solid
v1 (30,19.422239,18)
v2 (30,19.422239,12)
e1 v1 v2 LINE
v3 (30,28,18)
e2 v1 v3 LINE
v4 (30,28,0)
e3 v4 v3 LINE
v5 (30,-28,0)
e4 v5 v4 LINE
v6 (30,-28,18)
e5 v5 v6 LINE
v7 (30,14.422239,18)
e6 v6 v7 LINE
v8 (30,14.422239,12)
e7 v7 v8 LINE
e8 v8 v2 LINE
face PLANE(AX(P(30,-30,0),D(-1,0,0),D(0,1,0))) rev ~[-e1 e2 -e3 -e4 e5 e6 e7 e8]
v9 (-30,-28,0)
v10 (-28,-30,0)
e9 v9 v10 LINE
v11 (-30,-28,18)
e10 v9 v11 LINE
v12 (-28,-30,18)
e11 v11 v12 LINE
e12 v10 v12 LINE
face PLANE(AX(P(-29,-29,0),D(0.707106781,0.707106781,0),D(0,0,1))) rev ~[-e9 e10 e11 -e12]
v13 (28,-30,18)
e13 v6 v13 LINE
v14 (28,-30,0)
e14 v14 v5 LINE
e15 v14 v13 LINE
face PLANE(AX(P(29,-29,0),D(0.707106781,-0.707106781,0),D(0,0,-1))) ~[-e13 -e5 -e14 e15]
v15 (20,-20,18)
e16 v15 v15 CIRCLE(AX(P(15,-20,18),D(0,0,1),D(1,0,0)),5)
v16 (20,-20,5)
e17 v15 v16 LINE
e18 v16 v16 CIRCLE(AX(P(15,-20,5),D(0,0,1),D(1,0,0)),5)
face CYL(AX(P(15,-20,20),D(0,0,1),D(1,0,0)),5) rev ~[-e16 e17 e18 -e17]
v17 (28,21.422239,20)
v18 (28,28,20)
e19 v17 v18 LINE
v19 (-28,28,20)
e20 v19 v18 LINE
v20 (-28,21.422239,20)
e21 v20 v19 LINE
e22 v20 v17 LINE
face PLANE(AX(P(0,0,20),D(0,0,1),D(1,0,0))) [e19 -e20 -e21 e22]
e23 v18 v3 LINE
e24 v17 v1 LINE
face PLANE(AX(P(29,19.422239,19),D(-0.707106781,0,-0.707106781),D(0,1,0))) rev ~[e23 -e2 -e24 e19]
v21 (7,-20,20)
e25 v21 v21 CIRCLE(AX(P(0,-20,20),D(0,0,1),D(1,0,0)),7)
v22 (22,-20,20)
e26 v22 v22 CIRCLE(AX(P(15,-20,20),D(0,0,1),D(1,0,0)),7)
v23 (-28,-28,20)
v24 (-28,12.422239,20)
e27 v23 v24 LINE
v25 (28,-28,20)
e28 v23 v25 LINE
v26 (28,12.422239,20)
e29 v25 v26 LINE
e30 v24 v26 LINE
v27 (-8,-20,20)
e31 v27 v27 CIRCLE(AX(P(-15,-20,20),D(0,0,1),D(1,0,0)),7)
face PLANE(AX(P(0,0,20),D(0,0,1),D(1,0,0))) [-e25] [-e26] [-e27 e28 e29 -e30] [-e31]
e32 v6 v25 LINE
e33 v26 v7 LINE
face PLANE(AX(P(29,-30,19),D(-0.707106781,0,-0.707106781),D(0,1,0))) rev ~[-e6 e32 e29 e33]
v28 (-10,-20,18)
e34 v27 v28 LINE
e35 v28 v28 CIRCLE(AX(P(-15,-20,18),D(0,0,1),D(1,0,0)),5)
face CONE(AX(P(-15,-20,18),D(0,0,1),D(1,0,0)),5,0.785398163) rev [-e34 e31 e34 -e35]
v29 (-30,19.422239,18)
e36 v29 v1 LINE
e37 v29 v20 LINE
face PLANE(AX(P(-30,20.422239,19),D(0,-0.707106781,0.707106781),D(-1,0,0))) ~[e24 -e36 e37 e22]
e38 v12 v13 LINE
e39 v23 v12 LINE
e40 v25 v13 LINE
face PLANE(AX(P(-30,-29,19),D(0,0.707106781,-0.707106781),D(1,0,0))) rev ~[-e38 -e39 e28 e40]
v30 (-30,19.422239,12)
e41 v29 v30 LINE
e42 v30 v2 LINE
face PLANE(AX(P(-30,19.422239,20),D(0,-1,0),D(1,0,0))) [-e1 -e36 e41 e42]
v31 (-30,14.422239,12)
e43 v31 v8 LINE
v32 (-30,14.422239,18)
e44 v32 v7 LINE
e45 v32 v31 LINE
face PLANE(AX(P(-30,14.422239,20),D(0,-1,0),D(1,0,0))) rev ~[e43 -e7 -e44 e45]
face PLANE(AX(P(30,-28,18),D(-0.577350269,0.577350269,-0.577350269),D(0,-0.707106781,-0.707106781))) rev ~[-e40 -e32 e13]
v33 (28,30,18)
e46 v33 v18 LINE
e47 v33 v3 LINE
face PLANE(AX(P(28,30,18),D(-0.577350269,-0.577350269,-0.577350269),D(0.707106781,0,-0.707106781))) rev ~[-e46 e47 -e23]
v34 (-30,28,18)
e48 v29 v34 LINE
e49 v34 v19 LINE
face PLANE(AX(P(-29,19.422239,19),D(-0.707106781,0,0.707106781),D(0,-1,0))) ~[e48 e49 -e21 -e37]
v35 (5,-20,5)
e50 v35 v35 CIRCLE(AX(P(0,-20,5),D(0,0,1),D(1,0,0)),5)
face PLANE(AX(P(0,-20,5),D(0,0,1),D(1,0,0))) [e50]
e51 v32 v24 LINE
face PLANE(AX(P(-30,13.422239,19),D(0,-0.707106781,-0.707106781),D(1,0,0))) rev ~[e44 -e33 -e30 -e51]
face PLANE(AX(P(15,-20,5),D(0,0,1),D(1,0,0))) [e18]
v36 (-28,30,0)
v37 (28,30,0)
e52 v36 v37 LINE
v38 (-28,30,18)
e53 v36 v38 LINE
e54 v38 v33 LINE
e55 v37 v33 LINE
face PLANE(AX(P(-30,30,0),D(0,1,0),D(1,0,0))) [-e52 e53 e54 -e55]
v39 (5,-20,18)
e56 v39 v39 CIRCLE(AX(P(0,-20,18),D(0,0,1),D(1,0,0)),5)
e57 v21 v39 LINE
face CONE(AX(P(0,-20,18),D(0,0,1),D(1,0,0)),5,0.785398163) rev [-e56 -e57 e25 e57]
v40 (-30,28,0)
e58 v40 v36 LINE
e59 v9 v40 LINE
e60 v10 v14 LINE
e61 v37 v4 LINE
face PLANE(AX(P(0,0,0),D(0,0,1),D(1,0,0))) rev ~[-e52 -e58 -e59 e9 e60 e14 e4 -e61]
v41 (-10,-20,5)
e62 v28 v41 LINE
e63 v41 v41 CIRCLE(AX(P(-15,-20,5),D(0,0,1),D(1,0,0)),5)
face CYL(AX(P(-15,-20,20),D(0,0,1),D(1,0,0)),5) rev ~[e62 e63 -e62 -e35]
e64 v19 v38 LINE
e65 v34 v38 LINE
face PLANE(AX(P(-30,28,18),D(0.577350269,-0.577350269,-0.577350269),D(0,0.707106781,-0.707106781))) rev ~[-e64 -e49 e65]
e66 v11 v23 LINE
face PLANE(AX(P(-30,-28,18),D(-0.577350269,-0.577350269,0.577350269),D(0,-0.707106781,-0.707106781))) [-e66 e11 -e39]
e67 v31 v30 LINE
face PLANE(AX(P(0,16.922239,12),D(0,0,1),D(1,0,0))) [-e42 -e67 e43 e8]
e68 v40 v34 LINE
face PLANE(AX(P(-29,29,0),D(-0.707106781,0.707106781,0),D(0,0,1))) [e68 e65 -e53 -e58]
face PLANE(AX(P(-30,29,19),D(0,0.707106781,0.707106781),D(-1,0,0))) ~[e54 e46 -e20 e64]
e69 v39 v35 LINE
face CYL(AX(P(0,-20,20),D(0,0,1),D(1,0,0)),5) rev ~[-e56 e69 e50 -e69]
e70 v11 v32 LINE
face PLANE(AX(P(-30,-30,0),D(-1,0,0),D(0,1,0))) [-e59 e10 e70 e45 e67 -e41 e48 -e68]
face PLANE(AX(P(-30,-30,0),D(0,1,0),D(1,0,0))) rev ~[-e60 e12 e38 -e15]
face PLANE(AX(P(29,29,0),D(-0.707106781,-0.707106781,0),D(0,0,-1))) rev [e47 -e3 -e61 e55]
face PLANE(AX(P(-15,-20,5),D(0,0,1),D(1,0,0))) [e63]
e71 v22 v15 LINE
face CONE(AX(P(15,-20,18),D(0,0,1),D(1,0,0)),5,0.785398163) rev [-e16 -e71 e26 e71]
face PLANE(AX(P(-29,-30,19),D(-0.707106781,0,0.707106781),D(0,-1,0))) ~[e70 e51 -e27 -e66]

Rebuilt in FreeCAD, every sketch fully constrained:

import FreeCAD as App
import Part
import Sketcher

V = App.Vector
Q = App.Units.Quantity


def edges_at(feature, points):
    """Names of the edges that pass closest to the given points."""
    edges = feature.Shape.Edges
    near = lambda p: min(range(len(edges)), key=lambda i: edges[i].distToShape(Part.Vertex(*p))[0])
    return sorted({f"Edge{near(p) + 1}" for p in points})

doc = App.newDocument("Part")
body = doc.addObject("PartDesign::Body", "Body")

# Sketch on XY plane
sketch1 = doc.addObject("Sketcher::SketchObject", "Sketch")
body.addObject(sketch1)
sketch1.AttachmentSupport = (doc.XY_Plane, [""])
sketch1.MapMode = "FlatFace"
sketch1.addGeometry(Part.LineSegment(V(-30, 30, 0), V(-30, -30, 0)), False)
sketch1.addGeometry(Part.LineSegment(V(-30, -30, 0), V(30, -30, 0)), False)
sketch1.addGeometry(Part.LineSegment(V(30, -30, 0), V(30, 30, 0)), False)
sketch1.addGeometry(Part.LineSegment(V(30, 30, 0), V(-30, 30, 0)), False)
sketch1.addConstraint(Sketcher.Constraint("Coincident", 0, 2, 1, 1))
sketch1.addConstraint(Sketcher.Constraint("Coincident", 1, 2, 2, 1))
sketch1.addConstraint(Sketcher.Constraint("Coincident", 2, 2, 3, 1))
sketch1.addConstraint(Sketcher.Constraint("Coincident", 3, 2, 0, 1))
sketch1.addConstraint(Sketcher.Constraint("Vertical", 0))
sketch1.addConstraint(Sketcher.Constraint("Horizontal", 1))
sketch1.addConstraint(Sketcher.Constraint("Vertical", 2))
sketch1.addConstraint(Sketcher.Constraint("Horizontal", 3))
sketch1.addConstraint(Sketcher.Constraint("Symmetric", 0, 2, 2, 2, -1, 1))
sketch1.addConstraint(Sketcher.Constraint("Equal", 3, 0))
sketch1.addConstraint(Sketcher.Constraint("DistanceX", 1, 1, 1, 2, Q("60 mm")))
pad1 = doc.addObject("PartDesign::Pad", "Pad")
body.addObject(pad1)
pad1.Profile = sketch1
pad1.Length = 20

# Sketch on XY plane
sketch2 = doc.addObject("Sketcher::SketchObject", "Sketch001")
body.addObject(sketch2)
sketch2.AttachmentSupport = (doc.XY_Plane, [""])
sketch2.MapMode = "FlatFace"
sketch2.AttachmentOffset = App.Placement(V(0, 0, 20), App.Rotation())
sketch2.addGeometry(Part.LineSegment(V(-30, 19, 0), V(-30, 14, 0)), False)
sketch2.addGeometry(Part.LineSegment(V(-30, 14, 0), V(30, 14, 0)), False)
sketch2.addGeometry(Part.LineSegment(V(30, 14, 0), V(30, 19, 0)), False)
sketch2.addGeometry(Part.LineSegment(V(30, 19, 0), V(-30, 19, 0)), False)
sketch2.addConstraint(Sketcher.Constraint("Coincident", 0, 2, 1, 1))
sketch2.addConstraint(Sketcher.Constraint("Coincident", 1, 2, 2, 1))
sketch2.addConstraint(Sketcher.Constraint("Coincident", 2, 2, 3, 1))
sketch2.addConstraint(Sketcher.Constraint("Coincident", 3, 2, 0, 1))
sketch2.addConstraint(Sketcher.Constraint("Vertical", 0))
sketch2.addConstraint(Sketcher.Constraint("Horizontal", 1))
sketch2.addConstraint(Sketcher.Constraint("Vertical", 2))
sketch2.addConstraint(Sketcher.Constraint("Horizontal", 3))
sketch2.addConstraint(Sketcher.Constraint("DistanceX", 1, 1, 1, 2, Q("60 mm")))
sketch2.addConstraint(Sketcher.Constraint("DistanceY", 0, 2, 0, 1, Q("5 mm")))
sketch2.addConstraint(Sketcher.Constraint("DistanceX", 0, 2, -1, 1, Q("30 mm")))
sketch2.addConstraint(Sketcher.Constraint("DistanceY", -1, 1, 0, 2, Q("14.422239 mm")))
pocket1 = doc.addObject("PartDesign::Pocket", "Pocket")
body.addObject(pocket1)
pocket1.Profile = sketch2
pocket1.Length = 8

# Sketch on XY plane
sketch3 = doc.addObject("Sketcher::SketchObject", "Sketch002")
body.addObject(sketch3)
sketch3.AttachmentSupport = (doc.XY_Plane, [""])
sketch3.MapMode = "FlatFace"
sketch3.AttachmentOffset = App.Placement(V(0, 0, 20), App.Rotation())
sketch3.addGeometry(Part.Circle(V(0, -20, 0), V(0, 0, 1), 5), False)
sketch3.addGeometry(Part.Circle(V(15, -20, 0), V(0, 0, 1), 5), False)
sketch3.addGeometry(Part.Circle(V(-15, -20, 0), V(0, 0, 1), 5), False)
sketch3.addConstraint(Sketcher.Constraint("Equal", 0, 1))
sketch3.addConstraint(Sketcher.Constraint("Equal", 1, 2))
sketch3.addConstraint(Sketcher.Constraint("Symmetric", 1, 3, 2, 3, -2))
sketch3.addConstraint(Sketcher.Constraint("PointOnObject", 0, 3, -2))
sketch3.addConstraint(Sketcher.Constraint("Horizontal", 0, 3, 1, 3))
sketch3.addConstraint(Sketcher.Constraint("Diameter", 0, Q("10 mm")))
sketch3.addConstraint(Sketcher.Constraint("DistanceY", 0, 3, -1, 1, Q("20 mm")))
sketch3.addConstraint(Sketcher.Constraint("DistanceX", -1, 1, 1, 3, Q("15 mm")))
pocket2 = doc.addObject("PartDesign::Pocket", "Pocket001")
body.addObject(pocket2)
pocket2.Profile = sketch3
pocket2.Length = 15
doc.recompute()

chamfer = doc.addObject("PartDesign::Chamfer", "Chamfer")
body.addObject(chamfer)
chamfer.Base = (pocket2, edges_at(pocket2, [
    (0, -30, 20),
    (30, -7.789, 20),
    (30, 24.711, 20),
    (0, 30, 20),
    (-30, -7.789, 20),
    (-30, 24.711, 20),
    (10, -20, 20),
    (-5, -20, 20),
    (-20, -20, 20),
    (0, 19.422, 20),
    (0, 14.422, 20),
    (30, -30, 10),
    (-30, -30, 10),
    (-30, 30, 10),
    (30, 30, 10),
]))
chamfer.Size = 2

doc.recompute()
